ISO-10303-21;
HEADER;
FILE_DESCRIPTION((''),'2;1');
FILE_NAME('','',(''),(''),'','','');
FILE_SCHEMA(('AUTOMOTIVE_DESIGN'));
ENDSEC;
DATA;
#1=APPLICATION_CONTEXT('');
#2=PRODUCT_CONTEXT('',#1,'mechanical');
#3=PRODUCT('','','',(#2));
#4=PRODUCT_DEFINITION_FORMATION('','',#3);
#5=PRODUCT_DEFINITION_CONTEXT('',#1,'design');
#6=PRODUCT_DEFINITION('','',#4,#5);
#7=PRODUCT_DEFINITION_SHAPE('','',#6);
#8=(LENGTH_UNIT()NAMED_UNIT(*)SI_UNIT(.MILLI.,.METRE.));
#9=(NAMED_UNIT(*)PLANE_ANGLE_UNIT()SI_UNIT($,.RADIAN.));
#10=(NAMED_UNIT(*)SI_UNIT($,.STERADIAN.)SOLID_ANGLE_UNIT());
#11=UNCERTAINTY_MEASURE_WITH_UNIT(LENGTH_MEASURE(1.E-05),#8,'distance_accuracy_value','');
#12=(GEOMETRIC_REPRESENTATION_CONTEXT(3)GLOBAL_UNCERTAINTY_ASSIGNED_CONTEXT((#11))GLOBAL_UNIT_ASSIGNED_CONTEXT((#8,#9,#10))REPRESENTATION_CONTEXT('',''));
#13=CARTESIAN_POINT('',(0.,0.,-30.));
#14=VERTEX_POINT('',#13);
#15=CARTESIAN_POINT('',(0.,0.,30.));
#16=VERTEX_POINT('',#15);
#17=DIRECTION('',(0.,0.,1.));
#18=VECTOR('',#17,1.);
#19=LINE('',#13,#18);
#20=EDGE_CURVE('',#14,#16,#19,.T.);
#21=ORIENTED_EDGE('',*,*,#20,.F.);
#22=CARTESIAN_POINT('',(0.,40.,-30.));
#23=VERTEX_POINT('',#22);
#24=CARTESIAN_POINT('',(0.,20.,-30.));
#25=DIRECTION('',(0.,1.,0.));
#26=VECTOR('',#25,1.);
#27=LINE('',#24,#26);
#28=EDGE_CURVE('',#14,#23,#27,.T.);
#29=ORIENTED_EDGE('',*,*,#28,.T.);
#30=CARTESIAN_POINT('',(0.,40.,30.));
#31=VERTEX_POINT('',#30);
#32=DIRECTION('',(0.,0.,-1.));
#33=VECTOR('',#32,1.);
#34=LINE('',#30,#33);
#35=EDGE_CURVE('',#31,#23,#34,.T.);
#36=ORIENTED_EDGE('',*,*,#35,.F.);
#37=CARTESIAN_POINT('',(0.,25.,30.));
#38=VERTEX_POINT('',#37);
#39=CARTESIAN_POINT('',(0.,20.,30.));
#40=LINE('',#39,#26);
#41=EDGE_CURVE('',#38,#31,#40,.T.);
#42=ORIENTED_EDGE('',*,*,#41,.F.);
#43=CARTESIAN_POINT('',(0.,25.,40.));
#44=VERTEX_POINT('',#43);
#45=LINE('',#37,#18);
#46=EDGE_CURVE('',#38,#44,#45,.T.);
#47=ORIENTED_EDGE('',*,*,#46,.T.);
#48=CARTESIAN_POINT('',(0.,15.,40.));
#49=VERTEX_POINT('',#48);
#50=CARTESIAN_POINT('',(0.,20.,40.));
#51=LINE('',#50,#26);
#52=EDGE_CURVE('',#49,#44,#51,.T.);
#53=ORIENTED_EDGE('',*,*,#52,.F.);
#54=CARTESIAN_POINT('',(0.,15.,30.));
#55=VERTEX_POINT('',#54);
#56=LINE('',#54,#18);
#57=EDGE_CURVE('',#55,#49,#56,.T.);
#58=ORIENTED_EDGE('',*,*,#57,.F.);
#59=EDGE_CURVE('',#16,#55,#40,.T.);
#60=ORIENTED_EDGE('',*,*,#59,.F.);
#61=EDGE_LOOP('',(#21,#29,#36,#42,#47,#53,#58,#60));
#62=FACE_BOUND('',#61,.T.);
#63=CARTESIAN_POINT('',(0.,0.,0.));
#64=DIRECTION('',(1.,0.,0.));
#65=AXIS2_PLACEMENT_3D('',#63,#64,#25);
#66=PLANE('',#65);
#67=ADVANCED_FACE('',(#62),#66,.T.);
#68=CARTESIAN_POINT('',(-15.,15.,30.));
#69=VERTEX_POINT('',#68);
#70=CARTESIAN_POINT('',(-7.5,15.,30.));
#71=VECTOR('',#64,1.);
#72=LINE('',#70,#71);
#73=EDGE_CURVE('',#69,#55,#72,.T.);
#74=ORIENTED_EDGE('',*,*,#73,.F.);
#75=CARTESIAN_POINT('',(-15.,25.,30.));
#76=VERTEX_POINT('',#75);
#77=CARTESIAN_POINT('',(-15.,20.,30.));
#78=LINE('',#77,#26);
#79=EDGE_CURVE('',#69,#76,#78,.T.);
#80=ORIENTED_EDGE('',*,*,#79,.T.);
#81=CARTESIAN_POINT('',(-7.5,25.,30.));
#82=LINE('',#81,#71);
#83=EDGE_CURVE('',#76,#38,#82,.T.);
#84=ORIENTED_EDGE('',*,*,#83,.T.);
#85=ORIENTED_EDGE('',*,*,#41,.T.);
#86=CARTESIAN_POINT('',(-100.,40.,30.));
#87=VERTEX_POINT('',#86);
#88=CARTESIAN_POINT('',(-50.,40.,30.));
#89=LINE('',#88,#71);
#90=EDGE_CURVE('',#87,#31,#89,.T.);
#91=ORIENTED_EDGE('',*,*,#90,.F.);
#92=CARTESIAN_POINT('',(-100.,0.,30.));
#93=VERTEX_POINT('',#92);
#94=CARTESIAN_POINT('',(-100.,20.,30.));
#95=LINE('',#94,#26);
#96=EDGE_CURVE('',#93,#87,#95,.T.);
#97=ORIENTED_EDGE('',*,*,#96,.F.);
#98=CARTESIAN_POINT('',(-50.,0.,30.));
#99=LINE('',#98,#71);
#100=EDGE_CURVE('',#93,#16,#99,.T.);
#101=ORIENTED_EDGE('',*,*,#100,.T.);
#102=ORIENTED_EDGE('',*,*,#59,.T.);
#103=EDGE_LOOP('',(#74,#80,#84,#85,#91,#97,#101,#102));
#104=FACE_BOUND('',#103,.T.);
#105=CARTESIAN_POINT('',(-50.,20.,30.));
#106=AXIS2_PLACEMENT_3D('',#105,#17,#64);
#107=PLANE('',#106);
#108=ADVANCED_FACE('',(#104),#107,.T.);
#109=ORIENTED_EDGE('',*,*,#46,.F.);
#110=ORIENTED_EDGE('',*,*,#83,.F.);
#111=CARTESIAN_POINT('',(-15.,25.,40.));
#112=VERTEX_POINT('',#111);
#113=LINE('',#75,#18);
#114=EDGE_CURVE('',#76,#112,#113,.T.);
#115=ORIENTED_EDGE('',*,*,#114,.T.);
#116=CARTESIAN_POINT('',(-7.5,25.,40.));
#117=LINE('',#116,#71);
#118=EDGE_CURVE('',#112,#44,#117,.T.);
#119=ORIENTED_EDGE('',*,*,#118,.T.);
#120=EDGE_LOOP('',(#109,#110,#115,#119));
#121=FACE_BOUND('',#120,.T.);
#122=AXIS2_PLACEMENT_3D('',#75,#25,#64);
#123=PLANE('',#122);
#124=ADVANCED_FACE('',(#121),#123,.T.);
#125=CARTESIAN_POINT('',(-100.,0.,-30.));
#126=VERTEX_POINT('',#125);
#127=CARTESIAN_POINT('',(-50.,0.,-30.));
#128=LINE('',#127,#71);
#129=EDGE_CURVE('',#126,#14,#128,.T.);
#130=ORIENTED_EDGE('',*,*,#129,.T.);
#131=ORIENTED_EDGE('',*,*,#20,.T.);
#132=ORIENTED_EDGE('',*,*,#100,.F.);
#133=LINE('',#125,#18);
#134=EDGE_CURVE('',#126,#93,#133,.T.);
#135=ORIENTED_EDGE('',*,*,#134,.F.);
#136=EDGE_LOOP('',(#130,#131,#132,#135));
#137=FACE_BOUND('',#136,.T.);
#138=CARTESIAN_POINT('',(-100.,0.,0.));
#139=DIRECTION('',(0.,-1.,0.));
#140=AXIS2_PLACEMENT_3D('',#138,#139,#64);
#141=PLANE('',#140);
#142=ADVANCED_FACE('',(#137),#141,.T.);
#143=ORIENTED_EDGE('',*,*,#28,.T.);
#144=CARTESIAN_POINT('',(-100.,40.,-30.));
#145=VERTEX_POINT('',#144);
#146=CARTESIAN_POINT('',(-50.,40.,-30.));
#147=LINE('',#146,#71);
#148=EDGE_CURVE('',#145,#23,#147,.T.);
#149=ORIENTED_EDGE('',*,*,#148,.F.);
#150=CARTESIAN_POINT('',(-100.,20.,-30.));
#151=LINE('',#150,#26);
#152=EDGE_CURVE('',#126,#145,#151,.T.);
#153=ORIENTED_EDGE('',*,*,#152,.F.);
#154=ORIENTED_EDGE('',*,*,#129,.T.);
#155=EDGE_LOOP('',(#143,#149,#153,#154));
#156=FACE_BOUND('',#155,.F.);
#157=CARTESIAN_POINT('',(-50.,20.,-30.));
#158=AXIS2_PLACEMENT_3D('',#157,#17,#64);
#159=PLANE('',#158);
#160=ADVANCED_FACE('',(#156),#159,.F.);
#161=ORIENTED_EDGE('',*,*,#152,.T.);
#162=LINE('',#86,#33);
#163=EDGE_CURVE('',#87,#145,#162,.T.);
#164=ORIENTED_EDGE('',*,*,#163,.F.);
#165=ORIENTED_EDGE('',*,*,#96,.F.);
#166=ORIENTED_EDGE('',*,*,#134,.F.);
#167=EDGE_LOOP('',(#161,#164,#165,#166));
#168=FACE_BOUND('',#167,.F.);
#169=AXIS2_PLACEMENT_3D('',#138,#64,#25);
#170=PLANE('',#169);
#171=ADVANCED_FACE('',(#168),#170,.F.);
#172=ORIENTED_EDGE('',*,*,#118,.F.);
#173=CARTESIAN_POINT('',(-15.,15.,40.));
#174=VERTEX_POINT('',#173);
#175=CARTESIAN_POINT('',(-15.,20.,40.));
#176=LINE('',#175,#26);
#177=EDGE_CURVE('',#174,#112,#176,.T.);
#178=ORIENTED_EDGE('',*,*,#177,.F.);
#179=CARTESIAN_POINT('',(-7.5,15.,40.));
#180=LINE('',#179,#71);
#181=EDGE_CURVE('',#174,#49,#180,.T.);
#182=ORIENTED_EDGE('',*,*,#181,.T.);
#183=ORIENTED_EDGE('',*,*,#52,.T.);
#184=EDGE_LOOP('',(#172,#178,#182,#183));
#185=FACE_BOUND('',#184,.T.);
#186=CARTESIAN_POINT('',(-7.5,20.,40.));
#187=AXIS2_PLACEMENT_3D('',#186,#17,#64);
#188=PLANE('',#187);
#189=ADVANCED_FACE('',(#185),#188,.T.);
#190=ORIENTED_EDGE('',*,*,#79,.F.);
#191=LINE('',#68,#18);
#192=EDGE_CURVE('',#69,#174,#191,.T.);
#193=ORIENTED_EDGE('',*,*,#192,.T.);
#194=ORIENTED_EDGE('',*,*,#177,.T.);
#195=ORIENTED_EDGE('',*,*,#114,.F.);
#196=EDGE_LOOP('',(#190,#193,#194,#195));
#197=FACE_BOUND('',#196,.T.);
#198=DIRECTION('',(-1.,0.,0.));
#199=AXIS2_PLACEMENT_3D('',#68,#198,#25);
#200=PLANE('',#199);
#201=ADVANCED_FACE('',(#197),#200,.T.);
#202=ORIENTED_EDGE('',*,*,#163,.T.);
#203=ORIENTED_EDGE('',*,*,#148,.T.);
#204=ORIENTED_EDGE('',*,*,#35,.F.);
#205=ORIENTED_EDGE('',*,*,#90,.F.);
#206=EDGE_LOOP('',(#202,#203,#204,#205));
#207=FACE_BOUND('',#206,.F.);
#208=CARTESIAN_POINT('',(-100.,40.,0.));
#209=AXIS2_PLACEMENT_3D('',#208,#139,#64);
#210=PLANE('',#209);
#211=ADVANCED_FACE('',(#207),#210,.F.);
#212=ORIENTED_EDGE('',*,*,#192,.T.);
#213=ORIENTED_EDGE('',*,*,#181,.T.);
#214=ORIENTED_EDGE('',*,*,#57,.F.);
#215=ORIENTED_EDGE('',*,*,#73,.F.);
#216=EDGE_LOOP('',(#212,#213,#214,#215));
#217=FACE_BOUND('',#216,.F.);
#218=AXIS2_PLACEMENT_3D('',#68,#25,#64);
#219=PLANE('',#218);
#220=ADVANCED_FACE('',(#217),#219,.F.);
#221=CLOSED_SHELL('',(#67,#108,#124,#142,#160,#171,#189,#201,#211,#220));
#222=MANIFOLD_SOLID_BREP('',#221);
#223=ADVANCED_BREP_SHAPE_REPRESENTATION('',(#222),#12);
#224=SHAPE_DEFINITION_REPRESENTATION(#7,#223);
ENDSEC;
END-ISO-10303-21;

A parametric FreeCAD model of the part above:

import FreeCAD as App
import Part
import Sketcher


def add_polygon(sketch, points):
    """Adds a closed chain of lines whose ends are joined by coincident constraints."""
    first, n = sketch.GeometryCount, len(points)
    for a, b in zip(points, points[1:] + points[:1]):
        sketch.addGeometry(Part.LineSegment(App.Vector(*a, 0), App.Vector(*b, 0)), False)
    for i in range(n):
        sketch.addConstraint(Sketcher.Constraint("Coincident", first + i, 2, first + (i + 1) % n, 1))

doc = App.newDocument("Part")
params = doc.addObject("Spreadsheet::Sheet", "Params")
for row, (alias, value) in enumerate([
    ("sketch1_width", "100 mm"),
    ("sketch1_height", "40 mm"),
    ("pad1_length", "60 mm"),
    ("sketch2_width", "15 mm"),
    ("sketch2_height", "10 mm"),
    ("pad2_length", "10 mm"),
], start=1):
    params.set(f"A{row}", alias)
    params.set(f"B{row}", "=" + value)
    params.setAlias(f"B{row}", alias)

body = doc.addObject("PartDesign::Body", "Body")

# Sketch on XY plane
sketch1 = doc.addObject("Sketcher::SketchObject", "Sketch")
body.addObject(sketch1)
sketch1.AttachmentSupport = (doc.XY_Plane, [""])
sketch1.MapMode = "FlatFace"
add_polygon(sketch1, [(-100, 40), (-100, 0), (0, 0), (0, 40)])  # lines 0-3
sketch1.addConstraint(Sketcher.Constraint("Vertical", 0))
sketch1.addConstraint(Sketcher.Constraint("Horizontal", 1))
sketch1.addConstraint(Sketcher.Constraint("Vertical", 2))
sketch1.addConstraint(Sketcher.Constraint("Horizontal", 3))
sketch1.addConstraint(Sketcher.Constraint("Coincident", 1, 2, -1, 1))
sketch1.addConstraint(Sketcher.Constraint("DistanceX", 1, 1, 1, 2, 100.0))
sketch1.addConstraint(Sketcher.Constraint("DistanceY", 0, 2, 0, 1, 40.0))
sketch1.setExpression("Constraints[9]", "Params.sketch1_width")
sketch1.setExpression("Constraints[10]", "Params.sketch1_height")
pad1 = doc.addObject("PartDesign::Pad", "Pad")
body.addObject(pad1)
pad1.Profile = sketch1
pad1.setExpression("Length", "Params.pad1_length")
pad1.Midplane = True

# Sketch on XY plane
sketch2 = doc.addObject("Sketcher::SketchObject", "Sketch001")
body.addObject(sketch2)
sketch2.AttachmentSupport = (doc.XY_Plane, [""])
sketch2.MapMode = "FlatFace"
sketch2.AttachmentOffset = App.Placement(App.Vector(0, 0, 30), App.Rotation())
add_polygon(sketch2, [(-15, 25), (-15, 15), (0, 15), (0, 25)])  # lines 0-3
sketch2.addConstraint(Sketcher.Constraint("Vertical", 0))
sketch2.addConstraint(Sketcher.Constraint("Horizontal", 1))
sketch2.addConstraint(Sketcher.Constraint("Vertical", 2))
sketch2.addConstraint(Sketcher.Constraint("Horizontal", 3))
sketch2.addConstraint(Sketcher.Constraint("PointOnObject", 1, 2, -2))
sketch2.addConstraint(Sketcher.Constraint("DistanceX", 1, 1, 1, 2, 15.0))
sketch2.addConstraint(Sketcher.Constraint("DistanceY", 0, 2, 0, 1, 10.0))
sketch2.addConstraint(Sketcher.Constraint("DistanceY", -1, 1, 0, 2, 15.0))
sketch2.setExpression("Constraints[9]", "Params.sketch2_width")
sketch2.setExpression("Constraints[10]", "Params.sketch2_height")
pad2 = doc.addObject("PartDesign::Pad", "Pad001")
body.addObject(pad2)
pad2.Profile = sketch2
pad2.setExpression("Length", "Params.pad2_length")

doc.recompute()
